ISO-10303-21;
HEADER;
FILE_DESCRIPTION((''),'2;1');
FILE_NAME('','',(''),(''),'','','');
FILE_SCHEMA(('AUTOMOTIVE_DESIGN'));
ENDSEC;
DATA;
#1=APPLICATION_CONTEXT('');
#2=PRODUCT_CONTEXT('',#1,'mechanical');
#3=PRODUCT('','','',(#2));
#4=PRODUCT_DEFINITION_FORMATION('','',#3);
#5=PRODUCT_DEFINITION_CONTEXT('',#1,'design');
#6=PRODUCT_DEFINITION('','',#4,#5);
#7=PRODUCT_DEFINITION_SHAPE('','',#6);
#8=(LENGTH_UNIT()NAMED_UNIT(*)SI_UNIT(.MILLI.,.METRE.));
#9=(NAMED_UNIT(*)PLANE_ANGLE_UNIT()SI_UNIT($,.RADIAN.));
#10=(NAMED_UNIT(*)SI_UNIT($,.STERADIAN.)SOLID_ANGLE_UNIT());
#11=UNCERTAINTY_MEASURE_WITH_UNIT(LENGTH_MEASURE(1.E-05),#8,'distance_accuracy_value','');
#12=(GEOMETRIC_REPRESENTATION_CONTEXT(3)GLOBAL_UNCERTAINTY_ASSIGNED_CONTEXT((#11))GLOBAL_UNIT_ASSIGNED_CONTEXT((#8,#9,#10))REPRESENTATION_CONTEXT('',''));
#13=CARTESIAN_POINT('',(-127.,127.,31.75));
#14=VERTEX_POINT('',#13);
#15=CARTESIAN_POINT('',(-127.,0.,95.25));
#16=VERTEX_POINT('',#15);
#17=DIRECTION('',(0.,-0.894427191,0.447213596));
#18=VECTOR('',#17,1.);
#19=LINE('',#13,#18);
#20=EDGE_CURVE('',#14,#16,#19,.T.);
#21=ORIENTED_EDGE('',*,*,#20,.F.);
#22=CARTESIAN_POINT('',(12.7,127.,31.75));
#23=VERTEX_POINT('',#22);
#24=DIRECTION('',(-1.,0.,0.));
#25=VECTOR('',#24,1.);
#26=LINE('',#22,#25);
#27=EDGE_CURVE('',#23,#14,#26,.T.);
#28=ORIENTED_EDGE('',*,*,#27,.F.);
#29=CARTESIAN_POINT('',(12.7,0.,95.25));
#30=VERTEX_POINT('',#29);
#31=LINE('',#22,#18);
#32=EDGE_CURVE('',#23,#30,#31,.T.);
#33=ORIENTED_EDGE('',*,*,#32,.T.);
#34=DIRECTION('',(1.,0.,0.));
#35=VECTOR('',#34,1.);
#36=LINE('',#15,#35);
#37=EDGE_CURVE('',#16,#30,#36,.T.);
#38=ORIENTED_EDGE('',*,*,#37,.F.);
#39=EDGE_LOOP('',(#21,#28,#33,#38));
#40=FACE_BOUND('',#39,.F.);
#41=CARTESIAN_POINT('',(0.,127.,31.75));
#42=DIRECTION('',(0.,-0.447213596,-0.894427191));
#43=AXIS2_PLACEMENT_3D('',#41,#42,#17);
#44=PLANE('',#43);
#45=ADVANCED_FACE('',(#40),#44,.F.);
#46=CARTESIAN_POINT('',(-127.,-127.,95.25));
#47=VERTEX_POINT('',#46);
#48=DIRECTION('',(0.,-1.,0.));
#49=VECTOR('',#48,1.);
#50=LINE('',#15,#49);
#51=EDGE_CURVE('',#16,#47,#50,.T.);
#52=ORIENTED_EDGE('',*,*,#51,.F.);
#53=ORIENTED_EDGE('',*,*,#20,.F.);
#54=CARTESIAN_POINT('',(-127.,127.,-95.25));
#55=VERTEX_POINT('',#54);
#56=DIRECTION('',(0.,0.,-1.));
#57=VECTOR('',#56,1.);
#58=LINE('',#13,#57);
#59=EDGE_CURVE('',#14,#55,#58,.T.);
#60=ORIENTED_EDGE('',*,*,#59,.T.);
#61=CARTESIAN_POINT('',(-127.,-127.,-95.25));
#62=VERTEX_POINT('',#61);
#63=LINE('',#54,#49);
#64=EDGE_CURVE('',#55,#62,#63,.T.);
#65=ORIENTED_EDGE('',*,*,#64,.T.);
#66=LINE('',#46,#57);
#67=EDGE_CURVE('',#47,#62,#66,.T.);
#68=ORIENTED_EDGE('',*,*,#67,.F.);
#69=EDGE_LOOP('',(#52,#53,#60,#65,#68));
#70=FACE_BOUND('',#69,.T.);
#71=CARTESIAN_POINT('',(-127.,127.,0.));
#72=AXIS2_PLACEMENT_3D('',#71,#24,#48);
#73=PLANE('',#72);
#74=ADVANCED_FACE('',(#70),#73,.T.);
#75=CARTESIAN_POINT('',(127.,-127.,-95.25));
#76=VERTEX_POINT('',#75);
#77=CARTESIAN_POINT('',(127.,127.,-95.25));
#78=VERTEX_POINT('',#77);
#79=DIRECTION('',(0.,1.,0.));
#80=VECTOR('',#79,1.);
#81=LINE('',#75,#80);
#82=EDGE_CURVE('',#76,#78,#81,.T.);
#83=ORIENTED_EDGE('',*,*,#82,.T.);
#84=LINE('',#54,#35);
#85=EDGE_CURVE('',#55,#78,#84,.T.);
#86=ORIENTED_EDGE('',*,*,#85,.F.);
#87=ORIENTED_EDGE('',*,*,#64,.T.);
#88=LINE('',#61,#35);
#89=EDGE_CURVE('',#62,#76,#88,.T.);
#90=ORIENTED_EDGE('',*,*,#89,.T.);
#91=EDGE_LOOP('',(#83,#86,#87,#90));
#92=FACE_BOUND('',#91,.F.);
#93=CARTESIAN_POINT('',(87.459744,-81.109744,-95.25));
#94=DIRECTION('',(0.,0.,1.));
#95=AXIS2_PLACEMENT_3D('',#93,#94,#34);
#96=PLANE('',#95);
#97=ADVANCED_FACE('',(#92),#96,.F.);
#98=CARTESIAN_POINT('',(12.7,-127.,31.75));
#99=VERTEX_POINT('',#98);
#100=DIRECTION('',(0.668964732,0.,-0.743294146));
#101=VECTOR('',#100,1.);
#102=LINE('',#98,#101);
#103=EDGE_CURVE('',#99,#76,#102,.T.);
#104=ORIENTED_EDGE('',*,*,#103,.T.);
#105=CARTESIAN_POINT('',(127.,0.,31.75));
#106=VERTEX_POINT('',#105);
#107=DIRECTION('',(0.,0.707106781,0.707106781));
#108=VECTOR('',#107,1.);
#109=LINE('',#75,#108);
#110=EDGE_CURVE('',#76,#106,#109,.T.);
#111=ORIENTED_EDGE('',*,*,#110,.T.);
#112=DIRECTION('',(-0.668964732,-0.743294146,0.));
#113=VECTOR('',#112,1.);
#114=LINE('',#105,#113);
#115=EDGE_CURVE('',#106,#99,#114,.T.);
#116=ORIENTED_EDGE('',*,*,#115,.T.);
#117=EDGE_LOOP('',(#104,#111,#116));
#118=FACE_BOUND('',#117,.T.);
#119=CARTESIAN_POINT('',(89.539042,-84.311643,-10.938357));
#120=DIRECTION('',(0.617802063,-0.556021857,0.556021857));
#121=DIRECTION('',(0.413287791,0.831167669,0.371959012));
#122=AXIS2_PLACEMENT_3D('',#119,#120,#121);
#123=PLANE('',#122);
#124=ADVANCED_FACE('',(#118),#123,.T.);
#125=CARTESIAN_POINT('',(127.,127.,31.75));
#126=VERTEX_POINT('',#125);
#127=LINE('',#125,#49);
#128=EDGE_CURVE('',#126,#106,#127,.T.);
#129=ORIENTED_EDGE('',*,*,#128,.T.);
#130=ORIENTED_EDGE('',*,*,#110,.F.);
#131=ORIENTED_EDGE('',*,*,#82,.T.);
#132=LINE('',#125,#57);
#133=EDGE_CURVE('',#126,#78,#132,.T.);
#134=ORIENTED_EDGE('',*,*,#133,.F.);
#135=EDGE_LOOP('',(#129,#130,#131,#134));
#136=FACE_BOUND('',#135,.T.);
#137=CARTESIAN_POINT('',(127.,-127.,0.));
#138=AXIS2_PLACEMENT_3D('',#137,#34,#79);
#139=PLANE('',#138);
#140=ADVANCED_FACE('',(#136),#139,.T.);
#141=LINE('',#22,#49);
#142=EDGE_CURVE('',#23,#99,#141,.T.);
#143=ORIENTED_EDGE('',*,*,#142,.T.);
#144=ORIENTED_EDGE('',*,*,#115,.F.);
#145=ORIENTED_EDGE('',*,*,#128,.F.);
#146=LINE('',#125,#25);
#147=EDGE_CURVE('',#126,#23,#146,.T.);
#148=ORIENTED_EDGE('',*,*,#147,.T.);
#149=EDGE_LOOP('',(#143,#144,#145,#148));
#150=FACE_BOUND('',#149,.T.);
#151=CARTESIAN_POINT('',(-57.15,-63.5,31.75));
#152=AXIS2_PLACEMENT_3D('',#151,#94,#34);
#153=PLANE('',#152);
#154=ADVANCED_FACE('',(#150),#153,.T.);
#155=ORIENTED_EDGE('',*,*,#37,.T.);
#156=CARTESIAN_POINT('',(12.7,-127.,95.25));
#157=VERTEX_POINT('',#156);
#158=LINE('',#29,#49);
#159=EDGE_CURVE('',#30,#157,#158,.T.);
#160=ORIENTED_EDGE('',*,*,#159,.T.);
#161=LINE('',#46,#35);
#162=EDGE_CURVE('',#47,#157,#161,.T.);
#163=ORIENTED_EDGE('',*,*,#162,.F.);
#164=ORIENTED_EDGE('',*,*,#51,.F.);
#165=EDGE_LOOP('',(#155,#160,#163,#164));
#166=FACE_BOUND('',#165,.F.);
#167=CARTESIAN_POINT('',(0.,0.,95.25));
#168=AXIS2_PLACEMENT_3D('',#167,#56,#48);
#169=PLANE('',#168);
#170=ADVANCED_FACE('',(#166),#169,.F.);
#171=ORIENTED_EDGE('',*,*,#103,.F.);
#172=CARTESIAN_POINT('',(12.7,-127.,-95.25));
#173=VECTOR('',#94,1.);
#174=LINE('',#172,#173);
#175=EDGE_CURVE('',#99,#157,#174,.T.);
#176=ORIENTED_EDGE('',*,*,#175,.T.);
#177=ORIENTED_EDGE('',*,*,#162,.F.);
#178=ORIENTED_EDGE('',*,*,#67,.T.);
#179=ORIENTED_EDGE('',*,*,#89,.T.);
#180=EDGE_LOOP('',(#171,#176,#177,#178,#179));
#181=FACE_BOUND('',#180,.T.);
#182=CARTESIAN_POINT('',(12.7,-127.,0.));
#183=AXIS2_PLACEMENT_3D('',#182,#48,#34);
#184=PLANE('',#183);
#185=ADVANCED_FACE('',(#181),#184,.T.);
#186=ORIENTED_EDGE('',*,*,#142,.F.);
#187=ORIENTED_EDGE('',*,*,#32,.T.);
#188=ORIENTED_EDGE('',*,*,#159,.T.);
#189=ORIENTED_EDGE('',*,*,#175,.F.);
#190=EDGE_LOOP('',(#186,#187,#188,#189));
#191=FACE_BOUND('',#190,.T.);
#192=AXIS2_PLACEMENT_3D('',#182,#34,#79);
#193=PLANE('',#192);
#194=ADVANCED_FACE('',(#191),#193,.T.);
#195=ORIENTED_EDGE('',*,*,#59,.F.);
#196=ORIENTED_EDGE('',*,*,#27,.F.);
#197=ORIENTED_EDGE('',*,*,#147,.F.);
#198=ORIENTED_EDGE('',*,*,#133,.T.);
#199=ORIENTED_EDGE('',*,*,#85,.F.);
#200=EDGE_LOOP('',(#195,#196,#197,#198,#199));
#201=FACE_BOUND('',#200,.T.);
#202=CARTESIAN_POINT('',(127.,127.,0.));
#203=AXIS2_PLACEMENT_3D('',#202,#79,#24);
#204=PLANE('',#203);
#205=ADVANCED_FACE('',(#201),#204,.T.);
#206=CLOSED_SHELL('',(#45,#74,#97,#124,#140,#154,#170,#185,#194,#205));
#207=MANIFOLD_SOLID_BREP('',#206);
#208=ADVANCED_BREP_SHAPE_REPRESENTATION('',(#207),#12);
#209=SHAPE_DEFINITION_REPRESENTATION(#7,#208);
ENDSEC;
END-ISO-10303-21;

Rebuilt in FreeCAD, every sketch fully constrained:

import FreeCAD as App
import Part
import Sketcher
from FreeCAD import Vector
Q = App.Units.Quantity

doc = App.newDocument("Part")
params = doc.addObject("Spreadsheet::Sheet", "Params")
for row, (alias, value) in enumerate([
    ("sketch1_width", "5 in"),
    ("sketch1_width2", "10 in"),
    ("sketch1_height", "2.5 in"),
    ("pad1_length", "5 in"),
    ("sketch2_width", "5 in"),
    ("sketch2_width2", "10 in"),
    ("sketch2_height", "2.5 in"),
    ("pad2_length", "0.5 in"),
    ("sketch3_height", "10 in"),
    ("sketch3_width", "5.5 in"),
    ("pad3_length", "1.25 in"),
    ("sketch4_height", "10 in"),
    ("sketch4_width", "5.5 in"),
    ("pad4_length", "3.75 in"),
    ("sketch5_height", "5 in"),
    ("sketch5_height2", "10 in"),
    ("sketch5_width", "4.5 in"),
    ("pad5_length", "1.25 in"),
    ("sketch6_height", "5 in"),
    ("sketch6_height2", "10 in"),
    ("sketch6_width", "4.5 in"),
    ("pad6_length", "3.75 in"),
    ("sketch7_width", "10 in"),
    ("pad7_length", "1.25 in"),
    ("sketch8_height", "5 in"),
    ("sketch8_width", "4.5 in"),
    ("pad8_length", "3.75 in"),
    ("pocket1_length", "7.31 in"),
], start=1):
    params.set(f"A{row}", alias)
    params.set(f"B{row}", "=" + value)
    params.setAlias(f"B{row}", alias)

body = doc.addObject("PartDesign::Body", "Body")

# Sketch on YZ plane
sketch1 = body.newObject("Sketcher::SketchObject", "Sketch")
sketch1.AttachmentSupport = (doc.getObject("YZ_Plane"), [""])
sketch1.MapMode = "FlatFace"
sketch1.addGeometry([
    Part.LineSegment(Vector(127, 32, 0), Vector(0, 95, 0)),
    Part.LineSegment(Vector(0, 95, 0), Vector(-127, 95, 0)),
    Part.LineSegment(Vector(-127, 95, 0), Vector(-127, 32, 0)),
    Part.LineSegment(Vector(-127, 32, 0), Vector(127, 32, 0)),
], False)
sketch1.addConstraint([
    Sketcher.Constraint("Coincident", 0, 2, 1, 1),
    Sketcher.Constraint("Coincident", 1, 2, 2, 1),
    Sketcher.Constraint("Coincident", 2, 2, 3, 1),
    Sketcher.Constraint("Coincident", 3, 2, 0, 1),
    Sketcher.Constraint("Horizontal", 1),
    Sketcher.Constraint("Vertical", 2),
    Sketcher.Constraint("Horizontal", 3),
    Sketcher.Constraint("PointOnObject", 0, 2, -2),
    Sketcher.Constraint("DistanceX", 1, 2, 1, 1, Q("5 in")),
    Sketcher.Constraint("DistanceX", 3, 1, 3, 2, Q("10 in")),
    Sketcher.Constraint("DistanceY", 2, 2, 2, 1, Q("2.5 in")),
    Sketcher.Constraint("DistanceY", -1, 1, 0, 2, Q("3.75 in")),
])
sketch1.setExpression("Constraints[8]", "Params.sketch1_width")
sketch1.setExpression("Constraints[9]", "Params.sketch1_width2")
sketch1.setExpression("Constraints[10]", "Params.sketch1_height")
pad1 = body.newObject("PartDesign::Pad", "Pad")
pad1.Profile = sketch1
pad1.setExpression("Length", "Params.pad1_length")
pad1.Reversed = True

# Sketch on YZ plane
sketch2 = body.newObject("Sketcher::SketchObject", "Sketch001")
sketch2.AttachmentSupport = (doc.getObject("YZ_Plane"), [""])
sketch2.MapMode = "FlatFace"
sketch2.addGeometry([
    Part.LineSegment(Vector(127, 32, 0), Vector(0, 95, 0)),
    Part.LineSegment(Vector(0, 95, 0), Vector(-127, 95, 0)),
    Part.LineSegment(Vector(-127, 95, 0), Vector(-127, 32, 0)),
    Part.LineSegment(Vector(-127, 32, 0), Vector(127, 32, 0)),
], False)
sketch2.addConstraint([
    Sketcher.Constraint("Coincident", 0, 2, 1, 1),
    Sketcher.Constraint("Coincident", 1, 2, 2, 1),
    Sketcher.Constraint("Coincident", 2, 2, 3, 1),
    Sketcher.Constraint("Coincident", 3, 2, 0, 1),
    Sketcher.Constraint("Horizontal", 1),
    Sketcher.Constraint("Vertical", 2),
    Sketcher.Constraint("Horizontal", 3),
    Sketcher.Constraint("PointOnObject", 0, 2, -2),
    Sketcher.Constraint("DistanceX", 1, 2, 1, 1, Q("5 in")),
    Sketcher.Constraint("DistanceX", 3, 1, 3, 2, Q("10 in")),
    Sketcher.Constraint("DistanceY", 2, 2, 2, 1, Q("2.5 in")),
    Sketcher.Constraint("DistanceY", -1, 1, 0, 2, Q("3.75 in")),
])
sketch2.setExpression("Constraints[8]", "Params.sketch2_width")
sketch2.setExpression("Constraints[9]", "Params.sketch2_width2")
sketch2.setExpression("Constraints[10]", "Params.sketch2_height")
pad2 = body.newObject("PartDesign::Pad", "Pad001")
pad2.Profile = sketch2
pad2.setExpression("Length", "Params.pad2_length")

# Sketch on XY plane
sketch3 = body.newObject("Sketcher::SketchObject", "Sketch002")
sketch3.AttachmentSupport = (doc.getObject("XY_Plane"), [""])
sketch3.MapMode = "FlatFace"
sketch3.addGeometry([
    Part.LineSegment(Vector(-127, -127, 0), Vector(13, -127, 0)),
    Part.LineSegment(Vector(13, -127, 0), Vector(13, 127, 0)),
    Part.LineSegment(Vector(13, 127, 0), Vector(-127, 127, 0)),
    Part.LineSegment(Vector(-127, 127, 0), Vector(-127, -127, 0)),
], False)
sketch3.addConstraint([
    Sketcher.Constraint("Coincident", 0, 2, 1, 1),
    Sketcher.Constraint("Coincident", 1, 2, 2, 1),
    Sketcher.Constraint("Coincident", 2, 2, 3, 1),
    Sketcher.Constraint("Coincident", 3, 2, 0, 1),
    Sketcher.Constraint("Horizontal", 0),
    Sketcher.Constraint("Vertical", 1),
    Sketcher.Constraint("Horizontal", 2),
    Sketcher.Constraint("Vertical", 3),
    Sketcher.Constraint("DistanceY", 1, 1, 1, 2, Q("10 in")),
    Sketcher.Constraint("DistanceX", 0, 1, 0, 2, Q("5.5 in")),
    Sketcher.Constraint("DistanceY", 0, 2, -1, 1, Q("5 in")),
    Sketcher.Constraint("DistanceX", 2, 2, -1, 1, Q("5 in")),
])
sketch3.setExpression("Constraints[8]", "Params.sketch3_height")
sketch3.setExpression("Constraints[9]", "Params.sketch3_width")
pad3 = body.newObject("PartDesign::Pad", "Pad002")
pad3.Profile = sketch3
pad3.setExpression("Length", "Params.pad3_length")

# Sketch on XY plane
sketch4 = body.newObject("Sketcher::SketchObject", "Sketch003")
sketch4.AttachmentSupport = (doc.getObject("XY_Plane"), [""])
sketch4.MapMode = "FlatFace"
sketch4.addGeometry([
    Part.LineSegment(Vector(-127, -127, 0), Vector(13, -127, 0)),
    Part.LineSegment(Vector(13, -127, 0), Vector(13, 127, 0)),
    Part.LineSegment(Vector(13, 127, 0), Vector(-127, 127, 0)),
    Part.LineSegment(Vector(-127, 127, 0), Vector(-127, -127, 0)),
], False)
sketch4.addConstraint([
    Sketcher.Constraint("Coincident", 0, 2, 1, 1),
    Sketcher.Constraint("Coincident", 1, 2, 2, 1),
    Sketcher.Constraint("Coincident", 2, 2, 3, 1),
    Sketcher.Constraint("Coincident", 3, 2, 0, 1),
    Sketcher.Constraint("Horizontal", 0),
    Sketcher.Constraint("Vertical", 1),
    Sketcher.Constraint("Horizontal", 2),
    Sketcher.Constraint("Vertical", 3),
    Sketcher.Constraint("DistanceY", 1, 1, 1, 2, Q("10 in")),
    Sketcher.Constraint("DistanceX", 0, 1, 0, 2, Q("5.5 in")),
    Sketcher.Constraint("DistanceY", 0, 2, -1, 1, Q("5 in")),
    Sketcher.Constraint("DistanceX", 2, 2, -1, 1, Q("5 in")),
])
sketch4.setExpression("Constraints[8]", "Params.sketch4_height")
sketch4.setExpression("Constraints[9]", "Params.sketch4_width")
pad4 = body.newObject("PartDesign::Pad", "Pad003")
pad4.Profile = sketch4
pad4.setExpression("Length", "Params.pad4_length")
pad4.Reversed = True

# Sketch on XY plane
sketch5 = body.newObject("Sketcher::SketchObject", "Sketch004")
sketch5.AttachmentSupport = (doc.getObject("XY_Plane"), [""])
sketch5.MapMode = "FlatFace"
sketch5.addGeometry([
    Part.LineSegment(Vector(13, -127, 0), Vector(127, 0, 0)),
    Part.LineSegment(Vector(127, 0, 0), Vector(127, 127, 0)),
    Part.LineSegment(Vector(127, 127, 0), Vector(13, 127, 0)),
    Part.LineSegment(Vector(13, 127, 0), Vector(13, -127, 0)),
], False)
sketch5.addConstraint([
    Sketcher.Constraint("Coincident", 0, 2, 1, 1),
    Sketcher.Constraint("Coincident", 1, 2, 2, 1),
    Sketcher.Constraint("Coincident", 2, 2, 3, 1),
    Sketcher.Constraint("Coincident", 3, 2, 0, 1),
    Sketcher.Constraint("Vertical", 1),
    Sketcher.Constraint("Horizontal", 2),
    Sketcher.Constraint("Vertical", 3),
    Sketcher.Constraint("PointOnObject", 0, 2, -1),
    Sketcher.Constraint("DistanceY", 1, 1, 1, 2, Q("5 in")),
    Sketcher.Constraint("DistanceY", 3, 2, 3, 1, Q("10 in")),
    Sketcher.Constraint("DistanceX", 2, 2, 2, 1, Q("4.5 in")),
    Sketcher.Constraint("DistanceX", -1, 1, 0, 2, Q("5 in")),
])
sketch5.setExpression("Constraints[8]", "Params.sketch5_height")
sketch5.setExpression("Constraints[9]", "Params.sketch5_height2")
sketch5.setExpression("Constraints[10]", "Params.sketch5_width")
pad5 = body.newObject("PartDesign::Pad", "Pad004")
pad5.Profile = sketch5
pad5.setExpression("Length", "Params.pad5_length")

# Sketch on XY plane
sketch6 = body.newObject("Sketcher::SketchObject", "Sketch005")
sketch6.AttachmentSupport = (doc.getObject("XY_Plane"), [""])
sketch6.MapMode = "FlatFace"
sketch6.addGeometry([
    Part.LineSegment(Vector(13, -127, 0), Vector(127, 0, 0)),
    Part.LineSegment(Vector(127, 0, 0), Vector(127, 127, 0)),
    Part.LineSegment(Vector(127, 127, 0), Vector(13, 127, 0)),
    Part.LineSegment(Vector(13, 127, 0), Vector(13, -127, 0)),
], False)
sketch6.addConstraint([
    Sketcher.Constraint("Coincident", 0, 2, 1, 1),
    Sketcher.Constraint("Coincident", 1, 2, 2, 1),
    Sketcher.Constraint("Coincident", 2, 2, 3, 1),
    Sketcher.Constraint("Coincident", 3, 2, 0, 1),
    Sketcher.Constraint("Vertical", 1),
    Sketcher.Constraint("Horizontal", 2),
    Sketcher.Constraint("Vertical", 3),
    Sketcher.Constraint("PointOnObject", 0, 2, -1),
    Sketcher.Constraint("DistanceY", 1, 1, 1, 2, Q("5 in")),
    Sketcher.Constraint("DistanceY", 3, 2, 3, 1, Q("10 in")),
    Sketcher.Constraint("DistanceX", 2, 2, 2, 1, Q("4.5 in")),
    Sketcher.Constraint("DistanceX", -1, 1, 0, 2, Q("5 in")),
])
sketch6.setExpression("Constraints[8]", "Params.sketch6_height")
sketch6.setExpression("Constraints[9]", "Params.sketch6_height2")
sketch6.setExpression("Constraints[10]", "Params.sketch6_width")
pad6 = body.newObject("PartDesign::Pad", "Pad005")
pad6.Profile = sketch6
pad6.setExpression("Length", "Params.pad6_length")
pad6.Reversed = True

# Sketch on XY plane
sketch7 = body.newObject("Sketcher::SketchObject", "Sketch006")
sketch7.AttachmentSupport = (doc.getObject("XY_Plane"), [""])
sketch7.MapMode = "FlatFace"
sketch7.addGeometry([
    Part.LineSegment(Vector(-127, -127, 0), Vector(127, -127, 0)),
    Part.LineSegment(Vector(127, -127, 0), Vector(127, 127, 0)),
    Part.LineSegment(Vector(127, 127, 0), Vector(-127, 127, 0)),
    Part.LineSegment(Vector(-127, 127, 0), Vector(-127, -127, 0)),
], False)
sketch7.addConstraint([
    Sketcher.Constraint("Coincident", 0, 2, 1, 1),
    Sketcher.Constraint("Coincident", 1, 2, 2, 1),
    Sketcher.Constraint("Coincident", 2, 2, 3, 1),
    Sketcher.Constraint("Coincident", 3, 2, 0, 1),
    Sketcher.Constraint("Horizontal", 0),
    Sketcher.Constraint("Vertical", 1),
    Sketcher.Constraint("Horizontal", 2),
    Sketcher.Constraint("Vertical", 3),
    Sketcher.Constraint("Symmetric", 0, 2, 2, 2, -1, 1),
    Sketcher.Constraint("Equal", 2, 1),
    Sketcher.Constraint("DistanceX", 0, 1, 0, 2, Q("10 in")),
])
sketch7.setExpression("Constraints[10]", "Params.sketch7_width")
pad7 = body.newObject("PartDesign::Pad", "Pad006")
pad7.Profile = sketch7
pad7.setExpression("Length", "Params.pad7_length")

# Sketch on XY plane
sketch8 = body.newObject("Sketcher::SketchObject", "Sketch007")
sketch8.AttachmentSupport = (doc.getObject("XY_Plane"), [""])
sketch8.MapMode = "FlatFace"
sketch8.addGeometry([
    Part.LineSegment(Vector(127, 0, 0), Vector(13, -127, 0)),
    Part.LineSegment(Vector(13, -127, 0), Vector(127, -127, 0)),
    Part.LineSegment(Vector(127, -127, 0), Vector(127, 0, 0)),
], False)
sketch8.addConstraint([
    Sketcher.Constraint("Coincident", 0, 2, 1, 1),
    Sketcher.Constraint("Coincident", 1, 2, 2, 1),
    Sketcher.Constraint("Coincident", 2, 2, 0, 1),
    Sketcher.Constraint("Horizontal", 1),
    Sketcher.Constraint("Vertical", 2),
    Sketcher.Constraint("PointOnObject", 2, 2, -1),
    Sketcher.Constraint("DistanceY", 2, 1, 2, 2, Q("5 in")),
    Sketcher.Constraint("DistanceX", 1, 1, 1, 2, Q("4.5 in")),
    Sketcher.Constraint("DistanceX", -1, 1, 1, 2, Q("5 in")),
])
sketch8.setExpression("Constraints[6]", "Params.sketch8_height")
sketch8.setExpression("Constraints[7]", "Params.sketch8_width")
pad8 = body.newObject("PartDesign::Pad", "Pad007")
pad8.Profile = sketch8
pad8.setExpression("Length", "Params.pad8_length")
pad8.Reversed = True

# Sketch on an angled plane
sketch9 = body.newObject("Sketcher::SketchObject", "Sketch008")
sketch9.Placement = App.Placement(Vector(59.379771, -53.441794, 53.441794), App.Rotation(Vector(0.413287791, 0.831167669, 0.371959012), Vector(-0.668964731, 0, 0.743294146), Vector(0.617802063, -0.556021857, 0.556021857), "ZXY"))
sketch9.addGeometry([
    Part.LineSegment(Vector(-88, -156, 0), Vector(64, -61, 0)),
    Part.LineSegment(Vector(64, -61, 0), Vector(-88, 15, 0)),
    Part.LineSegment(Vector(-88, 15, 0), Vector(-88, -156, 0)),
], False)
sketch9.addConstraint([
    Sketcher.Constraint("Coincident", 0, 2, 1, 1),
    Sketcher.Constraint("Coincident", 1, 2, 2, 1),
    Sketcher.Constraint("Coincident", 2, 2, 0, 1),
    Sketcher.Constraint("Vertical", 2),
    Sketcher.Constraint("DistanceY", 2, 2, 2, 1, 170.861025),
    Sketcher.Constraint("DistanceX", -1, 1, 0, 2, 64.297248),
    Sketcher.Constraint("DistanceY", 0, 2, -1, 1, 61.358932),
    Sketcher.Constraint("DistanceX", 1, 2, -1, 1, 88.49984),
    Sketcher.Constraint("DistanceY", 2, 2, -1, 1, 155.757288),
])
pocket1 = body.newObject("PartDesign::Pocket", "Pocket")
pocket1.Profile = sketch9
pocket1.setExpression("Length", "Params.pocket1_length")
pocket1.Reversed = True

doc.recompute()
